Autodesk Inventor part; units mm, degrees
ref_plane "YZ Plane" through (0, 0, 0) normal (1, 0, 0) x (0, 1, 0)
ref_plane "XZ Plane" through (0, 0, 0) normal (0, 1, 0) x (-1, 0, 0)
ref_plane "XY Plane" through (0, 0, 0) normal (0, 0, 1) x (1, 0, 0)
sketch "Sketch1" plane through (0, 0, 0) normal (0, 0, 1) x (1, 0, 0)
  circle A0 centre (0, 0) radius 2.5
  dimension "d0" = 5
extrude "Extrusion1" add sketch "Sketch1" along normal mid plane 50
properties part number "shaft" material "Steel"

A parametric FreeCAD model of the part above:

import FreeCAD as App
import Part
import Sketcher
from FreeCAD import Vector
Q = App.Units.Quantity

doc = App.newDocument("Part")
body = doc.addObject("PartDesign::Body", "Body")

sketch1 = body.newObject("Sketcher::SketchObject", "Sketch")
sketch1.AttachmentSupport = (doc.getObject("XY_Plane"), [""])
sketch1.MapMode = "FlatFace"
sketch1.addGeometry(Part.Circle(Vector(0, 0, 0), Vector(0, 0, 1), 2.5), False)
sketch1.addConstraint(Sketcher.Constraint("Coincident", 0, 3, -1, 1))
sketch1.addConstraint(Sketcher.Constraint("Diameter", 0, Q("5 mm")))
pad1 = body.newObject("PartDesign::Pad", "Pad")
pad1.Profile = sketch1
pad1.Length = 50
pad1.Midplane = True

doc.recompute()
